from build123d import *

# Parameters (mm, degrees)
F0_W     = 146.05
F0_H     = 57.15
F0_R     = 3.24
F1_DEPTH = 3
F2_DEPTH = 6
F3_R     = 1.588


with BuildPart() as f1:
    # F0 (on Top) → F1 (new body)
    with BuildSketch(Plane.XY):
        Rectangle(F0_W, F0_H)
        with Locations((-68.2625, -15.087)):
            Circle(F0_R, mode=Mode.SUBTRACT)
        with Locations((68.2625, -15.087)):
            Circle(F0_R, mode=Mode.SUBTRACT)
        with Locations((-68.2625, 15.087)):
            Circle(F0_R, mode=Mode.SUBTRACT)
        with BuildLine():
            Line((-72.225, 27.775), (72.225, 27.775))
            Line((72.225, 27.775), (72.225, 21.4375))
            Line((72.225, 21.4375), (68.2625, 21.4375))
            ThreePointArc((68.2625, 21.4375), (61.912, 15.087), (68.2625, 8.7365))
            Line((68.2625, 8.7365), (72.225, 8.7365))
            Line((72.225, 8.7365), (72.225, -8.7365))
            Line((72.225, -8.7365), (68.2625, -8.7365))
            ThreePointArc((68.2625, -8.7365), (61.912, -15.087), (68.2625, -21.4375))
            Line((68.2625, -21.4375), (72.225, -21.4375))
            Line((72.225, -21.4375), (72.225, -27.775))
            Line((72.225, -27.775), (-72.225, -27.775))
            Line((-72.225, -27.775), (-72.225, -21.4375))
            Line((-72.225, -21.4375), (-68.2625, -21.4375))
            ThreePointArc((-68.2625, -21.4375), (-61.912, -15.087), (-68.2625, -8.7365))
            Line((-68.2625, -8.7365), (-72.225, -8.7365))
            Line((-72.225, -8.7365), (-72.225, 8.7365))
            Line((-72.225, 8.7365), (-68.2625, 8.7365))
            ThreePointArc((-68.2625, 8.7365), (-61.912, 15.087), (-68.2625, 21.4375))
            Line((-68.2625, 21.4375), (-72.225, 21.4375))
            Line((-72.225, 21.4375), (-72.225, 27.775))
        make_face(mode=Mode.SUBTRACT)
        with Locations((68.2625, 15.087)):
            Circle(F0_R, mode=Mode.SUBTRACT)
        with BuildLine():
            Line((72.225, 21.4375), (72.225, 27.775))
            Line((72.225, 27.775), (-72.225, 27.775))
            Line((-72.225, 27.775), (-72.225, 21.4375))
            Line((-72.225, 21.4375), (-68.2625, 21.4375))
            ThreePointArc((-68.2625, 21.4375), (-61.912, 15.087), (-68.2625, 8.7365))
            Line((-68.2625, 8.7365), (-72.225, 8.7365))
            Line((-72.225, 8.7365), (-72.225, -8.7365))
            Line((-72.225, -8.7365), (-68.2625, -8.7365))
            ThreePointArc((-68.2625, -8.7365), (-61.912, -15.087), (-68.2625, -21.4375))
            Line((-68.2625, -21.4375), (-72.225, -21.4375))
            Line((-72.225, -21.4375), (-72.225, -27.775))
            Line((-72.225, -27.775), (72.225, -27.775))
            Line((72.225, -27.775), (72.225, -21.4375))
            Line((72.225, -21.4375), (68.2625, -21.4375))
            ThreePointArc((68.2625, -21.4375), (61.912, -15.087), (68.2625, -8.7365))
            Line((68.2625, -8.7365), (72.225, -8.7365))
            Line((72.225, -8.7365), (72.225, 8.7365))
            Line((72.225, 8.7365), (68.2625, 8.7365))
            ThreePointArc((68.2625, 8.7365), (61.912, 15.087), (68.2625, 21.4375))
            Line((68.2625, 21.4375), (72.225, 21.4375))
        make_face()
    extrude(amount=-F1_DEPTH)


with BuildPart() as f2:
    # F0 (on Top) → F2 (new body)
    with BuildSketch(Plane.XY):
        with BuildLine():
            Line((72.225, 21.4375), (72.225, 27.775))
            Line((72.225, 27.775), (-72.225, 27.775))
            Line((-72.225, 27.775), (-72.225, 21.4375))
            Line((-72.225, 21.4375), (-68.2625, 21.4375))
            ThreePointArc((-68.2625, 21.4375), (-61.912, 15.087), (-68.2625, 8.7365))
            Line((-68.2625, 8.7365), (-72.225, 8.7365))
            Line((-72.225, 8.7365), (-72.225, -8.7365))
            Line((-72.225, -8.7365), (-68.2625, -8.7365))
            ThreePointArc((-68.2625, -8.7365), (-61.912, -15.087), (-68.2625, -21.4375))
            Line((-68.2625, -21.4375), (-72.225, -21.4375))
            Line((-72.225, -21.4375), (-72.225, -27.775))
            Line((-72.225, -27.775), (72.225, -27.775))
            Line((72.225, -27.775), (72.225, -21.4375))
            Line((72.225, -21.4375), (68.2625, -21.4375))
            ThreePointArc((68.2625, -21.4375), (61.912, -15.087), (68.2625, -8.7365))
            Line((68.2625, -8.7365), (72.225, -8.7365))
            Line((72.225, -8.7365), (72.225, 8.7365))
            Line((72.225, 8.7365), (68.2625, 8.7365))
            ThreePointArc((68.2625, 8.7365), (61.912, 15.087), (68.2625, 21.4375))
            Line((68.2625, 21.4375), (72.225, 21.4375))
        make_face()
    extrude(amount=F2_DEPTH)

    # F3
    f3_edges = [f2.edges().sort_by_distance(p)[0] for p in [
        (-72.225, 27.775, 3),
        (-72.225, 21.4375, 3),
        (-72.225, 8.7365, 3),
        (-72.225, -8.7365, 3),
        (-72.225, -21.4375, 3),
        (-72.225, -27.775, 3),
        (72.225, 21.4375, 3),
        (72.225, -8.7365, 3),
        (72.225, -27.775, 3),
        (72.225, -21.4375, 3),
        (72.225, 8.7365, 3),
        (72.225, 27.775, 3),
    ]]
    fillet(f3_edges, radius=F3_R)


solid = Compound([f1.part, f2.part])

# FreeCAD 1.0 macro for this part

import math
import FreeCAD as App
import Part
import Sketcher
Q = App.Units.Quantity


def edges_at(feature, points):
    """Names of the edges that pass closest to the given points."""
    edges = feature.Shape.Edges
    near = lambda p: min(range(len(edges)), key=lambda i: edges[i].distToShape(Part.Vertex(*p))[0])
    return sorted({f"Edge{near(p) + 1}" for p in points})

doc = App.newDocument("Part")
body = doc.addObject("PartDesign::Body", "Body")

# Sketch on XY plane
sketch1 = body.newObject("Sketcher::SketchObject", "Sketch")
sketch1.AttachmentSupport = (doc.getObject("XY_Plane"), [""])
sketch1.MapMode = "FlatFace"
sketch1.addGeometry([
    Part.LineSegment(App.Vector(-73, 28.6, 0), App.Vector(-73, -28.6, 0)),  # 0
    Part.LineSegment(App.Vector(-73, -28.6, 0), App.Vector(73, -28.6, 0)),  # 1
    Part.LineSegment(App.Vector(73, -28.6, 0), App.Vector(73, 28.6, 0)),  # 2
    Part.LineSegment(App.Vector(73, 28.6, 0), App.Vector(-73, 28.6, 0)),  # 3
    Part.Circle(App.Vector(-68.3, -15.1, 0), App.Vector(0, 0, 1), 3.2),  # 4
    Part.Circle(App.Vector(68.3, -15.1, 0), App.Vector(0, 0, 1), 3.2),  # 5
    Part.Circle(App.Vector(-68.3, 15.1, 0), App.Vector(0, 0, 1), 3.2),  # 6
    Part.Circle(App.Vector(68.3, 15.1, 0), App.Vector(0, 0, 1), 3.2),  # 7
], False)
sketch1.addConstraint([
    Sketcher.Constraint("Coincident", 0, 2, 1, 1),
    Sketcher.Constraint("Coincident", 1, 2, 2, 1),
    Sketcher.Constraint("Coincident", 2, 2, 3, 1),
    Sketcher.Constraint("Coincident", 3, 2, 0, 1),
    Sketcher.Constraint("Vertical", 0),
    Sketcher.Constraint("Horizontal", 1),
    Sketcher.Constraint("Vertical", 2),
    Sketcher.Constraint("Horizontal", 3),
    Sketcher.Constraint("Equal", 4, 5),
    Sketcher.Constraint("Equal", 5, 6),
    Sketcher.Constraint("Equal", 6, 7),
    Sketcher.Constraint("Symmetric", 5, 3, 6, 3, -1, 1),
    Sketcher.Constraint("Symmetric", 4, 3, 7, 3, -1, 1),
    Sketcher.Constraint("Symmetric", 0, 2, 2, 2, -1, 1),
    Sketcher.Constraint("Symmetric", 4, 3, 5, 3, -2),
    Sketcher.Constraint("Diameter", 4, Q("6.48 mm")),
    Sketcher.Constraint("DistanceX", 1, 1, 1, 2, Q("146.05 mm")),
    Sketcher.Constraint("DistanceY", 0, 2, 0, 1, Q("57.15 mm")),
    Sketcher.Constraint("DistanceY", 4, 3, -1, 1, Q("15.087 mm")),
    Sketcher.Constraint("DistanceX", 4, 3, 5, 3, Q("136.525 mm")),
])
pad1 = body.newObject("PartDesign::Pad", "Pad")
pad1.Profile = sketch1
pad1.Length = 3
pad1.Reversed = True
body2 = doc.addObject("PartDesign::Body", "Body001")

# Sketch on XY plane
sketch2 = body2.newObject("Sketcher::SketchObject", "Sketch001")
sketch2.AttachmentSupport = (doc.getObject("XY_Plane001"), [""])
sketch2.MapMode = "FlatFace"
sketch2.addGeometry([
    Part.LineSegment(App.Vector(72.2, 21.4, 0), App.Vector(72.2, 27.8, 0)),  # 0
    Part.LineSegment(App.Vector(72.2, 27.8, 0), App.Vector(-72.2, 27.8, 0)),  # 1
    Part.LineSegment(App.Vector(-72.2, 27.8, 0), App.Vector(-72.2, 21.4, 0)),  # 2
    Part.LineSegment(App.Vector(-72.2, 21.4, 0), App.Vector(-68.3, 21.4, 0)),  # 3
    Part.ArcOfCircle(Part.Circle(App.Vector(-68.3, 15.1, 0), App.Vector(0, 0, 1), 6.4), math.radians(-90), math.radians(90)),  # 4
    Part.LineSegment(App.Vector(-68.3, 8.7, 0), App.Vector(-72.2, 8.7, 0)),  # 5
    Part.LineSegment(App.Vector(-72.2, 8.7, 0), App.Vector(-72.2, -8.7, 0)),  # 6
    Part.LineSegment(App.Vector(-72.2, -8.7, 0), App.Vector(-68.3, -8.7, 0)),  # 7
    Part.ArcOfCircle(Part.Circle(App.Vector(-68.3, -15.1, 0), App.Vector(0, 0, 1), 6.4), math.radians(-90), math.radians(90)),  # 8
    Part.LineSegment(App.Vector(-68.3, -21.4, 0), App.Vector(-72.2, -21.4, 0)),  # 9
    Part.LineSegment(App.Vector(-72.2, -21.4, 0), App.Vector(-72.2, -27.8, 0)),  # 10
    Part.LineSegment(App.Vector(-72.2, -27.8, 0), App.Vector(72.2, -27.8, 0)),  # 11
    Part.LineSegment(App.Vector(72.2, -27.8, 0), App.Vector(72.2, -21.4, 0)),  # 12
    Part.LineSegment(App.Vector(72.2, -21.4, 0), App.Vector(68.3, -21.4, 0)),  # 13
    Part.ArcOfCircle(Part.Circle(App.Vector(68.3, -15.1, 0), App.Vector(0, 0, 1), 6.4), math.radians(90), math.radians(270)),  # 14
    Part.LineSegment(App.Vector(68.3, -8.7, 0), App.Vector(72.2, -8.7, 0)),  # 15
    Part.LineSegment(App.Vector(72.2, -8.7, 0), App.Vector(72.2, 8.7, 0)),  # 16
    Part.LineSegment(App.Vector(72.2, 8.7, 0), App.Vector(68.3, 8.7, 0)),  # 17
    Part.ArcOfCircle(Part.Circle(App.Vector(68.3, 15.1, 0), App.Vector(0, 0, 1), 6.4), math.radians(90), math.radians(270)),  # 18
    Part.LineSegment(App.Vector(68.3, 21.4, 0), App.Vector(72.2, 21.4, 0)),  # 19
], False)
sketch2.addConstraint([
    Sketcher.Constraint("Coincident", 0, 2, 1, 1),
    Sketcher.Constraint("Coincident", 1, 2, 2, 1),
    Sketcher.Constraint("Coincident", 2, 2, 3, 1),
    Sketcher.Constraint("Tangent", 3, 2, 4, 2),
    Sketcher.Constraint("Tangent", 4, 1, 5, 1),
    Sketcher.Constraint("Coincident", 5, 2, 6, 1),
    Sketcher.Constraint("Coincident", 6, 2, 7, 1),
    Sketcher.Constraint("Tangent", 7, 2, 8, 2),
    Sketcher.Constraint("Tangent", 8, 1, 9, 1),
    Sketcher.Constraint("Coincident", 9, 2, 10, 1),
    Sketcher.Constraint("Coincident", 10, 2, 11, 1),
    Sketcher.Constraint("Coincident", 11, 2, 12, 1),
    Sketcher.Constraint("Coincident", 12, 2, 13, 1),
    Sketcher.Constraint("Tangent", 13, 2, 14, 2),
    Sketcher.Constraint("Tangent", 14, 1, 15, 1),
    Sketcher.Constraint("Coincident", 15, 2, 16, 1),
    Sketcher.Constraint("Coincident", 16, 2, 17, 1),
    Sketcher.Constraint("Tangent", 17, 2, 18, 2),
    Sketcher.Constraint("Tangent", 18, 1, 19, 1),
    Sketcher.Constraint("Coincident", 19, 2, 0, 1),
    Sketcher.Constraint("Vertical", 0),
    Sketcher.Constraint("Horizontal", 1),
    Sketcher.Constraint("Vertical", 2),
    Sketcher.Constraint("Horizontal", 3),
    Sketcher.Constraint("Horizontal", 5),
    Sketcher.Constraint("Vertical", 6),
    Sketcher.Constraint("Horizontal", 7),
    Sketcher.Constraint("Horizontal", 9),
    Sketcher.Constraint("Vertical", 10),
    Sketcher.Constraint("Horizontal", 11),
    Sketcher.Constraint("Vertical", 12),
    Sketcher.Constraint("Horizontal", 13),
    Sketcher.Constraint("Horizontal", 15),
    Sketcher.Constraint("Vertical", 16),
    Sketcher.Constraint("Horizontal", 17),
    Sketcher.Constraint("Horizontal", 19),
    Sketcher.Constraint("Equal", 4, 8),
    Sketcher.Constraint("Equal", 8, 14),
    Sketcher.Constraint("Equal", 14, 18),
    Sketcher.Constraint("Symmetric", 4, 3, 14, 3, -1, 1),
    Sketcher.Constraint("Symmetric", 8, 3, 18, 3, -1, 1),
    Sketcher.Constraint("Symmetric", 0, 2, 10, 2, -1, 1),
    Sketcher.Constraint("Symmetric", 8, 3, 14, 3, -2),
    Sketcher.Constraint("Vertical", 2, 2, 5, 2),
    Sketcher.Constraint("Vertical", 6, 2, 9, 2),
    Sketcher.Constraint("Vertical", 0, 2, 11, 2),
    Sketcher.Constraint("Vertical", 12, 2, 15, 2),
    Sketcher.Constraint("DistanceX", 1, 2, 1, 1, Q("144.45 mm")),
    Sketcher.Constraint("Radius", 4, Q("6.3505 mm")),
    Sketcher.Constraint("DistanceY", 6, 2, 6, 1, Q("17.473 mm")),
    Sketcher.Constraint("DistanceY", 11, 2, 0, 2, Q("55.55 mm")),
    Sketcher.Constraint("DistanceX", 3, 1, 3, 2, Q("3.9625 mm")),
])
pad2 = body2.newObject("PartDesign::Pad", "Pad001")
pad2.Profile = sketch2
pad2.Length = 6
doc.recompute()

fillet = body2.newObject("PartDesign::Fillet", "Fillet")
fillet.Base = (pad2, edges_at(pad2, [
    (-72.225, 27.775, 3),
    (-72.225, 21.438, 3),
    (-72.225, 8.736, 3),
    (-72.225, -8.736, 3),
    (-72.225, -21.438, 3),
    (-72.225, -27.775, 3),
    (72.225, 21.438, 3),
    (72.225, -8.736, 3),
    (72.225, -27.775, 3),
    (72.225, -21.438, 3),
    (72.225, 8.736, 3),
    (72.225, 27.775, 3),
]))
fillet.Radius = 1.588

doc.recompute()
